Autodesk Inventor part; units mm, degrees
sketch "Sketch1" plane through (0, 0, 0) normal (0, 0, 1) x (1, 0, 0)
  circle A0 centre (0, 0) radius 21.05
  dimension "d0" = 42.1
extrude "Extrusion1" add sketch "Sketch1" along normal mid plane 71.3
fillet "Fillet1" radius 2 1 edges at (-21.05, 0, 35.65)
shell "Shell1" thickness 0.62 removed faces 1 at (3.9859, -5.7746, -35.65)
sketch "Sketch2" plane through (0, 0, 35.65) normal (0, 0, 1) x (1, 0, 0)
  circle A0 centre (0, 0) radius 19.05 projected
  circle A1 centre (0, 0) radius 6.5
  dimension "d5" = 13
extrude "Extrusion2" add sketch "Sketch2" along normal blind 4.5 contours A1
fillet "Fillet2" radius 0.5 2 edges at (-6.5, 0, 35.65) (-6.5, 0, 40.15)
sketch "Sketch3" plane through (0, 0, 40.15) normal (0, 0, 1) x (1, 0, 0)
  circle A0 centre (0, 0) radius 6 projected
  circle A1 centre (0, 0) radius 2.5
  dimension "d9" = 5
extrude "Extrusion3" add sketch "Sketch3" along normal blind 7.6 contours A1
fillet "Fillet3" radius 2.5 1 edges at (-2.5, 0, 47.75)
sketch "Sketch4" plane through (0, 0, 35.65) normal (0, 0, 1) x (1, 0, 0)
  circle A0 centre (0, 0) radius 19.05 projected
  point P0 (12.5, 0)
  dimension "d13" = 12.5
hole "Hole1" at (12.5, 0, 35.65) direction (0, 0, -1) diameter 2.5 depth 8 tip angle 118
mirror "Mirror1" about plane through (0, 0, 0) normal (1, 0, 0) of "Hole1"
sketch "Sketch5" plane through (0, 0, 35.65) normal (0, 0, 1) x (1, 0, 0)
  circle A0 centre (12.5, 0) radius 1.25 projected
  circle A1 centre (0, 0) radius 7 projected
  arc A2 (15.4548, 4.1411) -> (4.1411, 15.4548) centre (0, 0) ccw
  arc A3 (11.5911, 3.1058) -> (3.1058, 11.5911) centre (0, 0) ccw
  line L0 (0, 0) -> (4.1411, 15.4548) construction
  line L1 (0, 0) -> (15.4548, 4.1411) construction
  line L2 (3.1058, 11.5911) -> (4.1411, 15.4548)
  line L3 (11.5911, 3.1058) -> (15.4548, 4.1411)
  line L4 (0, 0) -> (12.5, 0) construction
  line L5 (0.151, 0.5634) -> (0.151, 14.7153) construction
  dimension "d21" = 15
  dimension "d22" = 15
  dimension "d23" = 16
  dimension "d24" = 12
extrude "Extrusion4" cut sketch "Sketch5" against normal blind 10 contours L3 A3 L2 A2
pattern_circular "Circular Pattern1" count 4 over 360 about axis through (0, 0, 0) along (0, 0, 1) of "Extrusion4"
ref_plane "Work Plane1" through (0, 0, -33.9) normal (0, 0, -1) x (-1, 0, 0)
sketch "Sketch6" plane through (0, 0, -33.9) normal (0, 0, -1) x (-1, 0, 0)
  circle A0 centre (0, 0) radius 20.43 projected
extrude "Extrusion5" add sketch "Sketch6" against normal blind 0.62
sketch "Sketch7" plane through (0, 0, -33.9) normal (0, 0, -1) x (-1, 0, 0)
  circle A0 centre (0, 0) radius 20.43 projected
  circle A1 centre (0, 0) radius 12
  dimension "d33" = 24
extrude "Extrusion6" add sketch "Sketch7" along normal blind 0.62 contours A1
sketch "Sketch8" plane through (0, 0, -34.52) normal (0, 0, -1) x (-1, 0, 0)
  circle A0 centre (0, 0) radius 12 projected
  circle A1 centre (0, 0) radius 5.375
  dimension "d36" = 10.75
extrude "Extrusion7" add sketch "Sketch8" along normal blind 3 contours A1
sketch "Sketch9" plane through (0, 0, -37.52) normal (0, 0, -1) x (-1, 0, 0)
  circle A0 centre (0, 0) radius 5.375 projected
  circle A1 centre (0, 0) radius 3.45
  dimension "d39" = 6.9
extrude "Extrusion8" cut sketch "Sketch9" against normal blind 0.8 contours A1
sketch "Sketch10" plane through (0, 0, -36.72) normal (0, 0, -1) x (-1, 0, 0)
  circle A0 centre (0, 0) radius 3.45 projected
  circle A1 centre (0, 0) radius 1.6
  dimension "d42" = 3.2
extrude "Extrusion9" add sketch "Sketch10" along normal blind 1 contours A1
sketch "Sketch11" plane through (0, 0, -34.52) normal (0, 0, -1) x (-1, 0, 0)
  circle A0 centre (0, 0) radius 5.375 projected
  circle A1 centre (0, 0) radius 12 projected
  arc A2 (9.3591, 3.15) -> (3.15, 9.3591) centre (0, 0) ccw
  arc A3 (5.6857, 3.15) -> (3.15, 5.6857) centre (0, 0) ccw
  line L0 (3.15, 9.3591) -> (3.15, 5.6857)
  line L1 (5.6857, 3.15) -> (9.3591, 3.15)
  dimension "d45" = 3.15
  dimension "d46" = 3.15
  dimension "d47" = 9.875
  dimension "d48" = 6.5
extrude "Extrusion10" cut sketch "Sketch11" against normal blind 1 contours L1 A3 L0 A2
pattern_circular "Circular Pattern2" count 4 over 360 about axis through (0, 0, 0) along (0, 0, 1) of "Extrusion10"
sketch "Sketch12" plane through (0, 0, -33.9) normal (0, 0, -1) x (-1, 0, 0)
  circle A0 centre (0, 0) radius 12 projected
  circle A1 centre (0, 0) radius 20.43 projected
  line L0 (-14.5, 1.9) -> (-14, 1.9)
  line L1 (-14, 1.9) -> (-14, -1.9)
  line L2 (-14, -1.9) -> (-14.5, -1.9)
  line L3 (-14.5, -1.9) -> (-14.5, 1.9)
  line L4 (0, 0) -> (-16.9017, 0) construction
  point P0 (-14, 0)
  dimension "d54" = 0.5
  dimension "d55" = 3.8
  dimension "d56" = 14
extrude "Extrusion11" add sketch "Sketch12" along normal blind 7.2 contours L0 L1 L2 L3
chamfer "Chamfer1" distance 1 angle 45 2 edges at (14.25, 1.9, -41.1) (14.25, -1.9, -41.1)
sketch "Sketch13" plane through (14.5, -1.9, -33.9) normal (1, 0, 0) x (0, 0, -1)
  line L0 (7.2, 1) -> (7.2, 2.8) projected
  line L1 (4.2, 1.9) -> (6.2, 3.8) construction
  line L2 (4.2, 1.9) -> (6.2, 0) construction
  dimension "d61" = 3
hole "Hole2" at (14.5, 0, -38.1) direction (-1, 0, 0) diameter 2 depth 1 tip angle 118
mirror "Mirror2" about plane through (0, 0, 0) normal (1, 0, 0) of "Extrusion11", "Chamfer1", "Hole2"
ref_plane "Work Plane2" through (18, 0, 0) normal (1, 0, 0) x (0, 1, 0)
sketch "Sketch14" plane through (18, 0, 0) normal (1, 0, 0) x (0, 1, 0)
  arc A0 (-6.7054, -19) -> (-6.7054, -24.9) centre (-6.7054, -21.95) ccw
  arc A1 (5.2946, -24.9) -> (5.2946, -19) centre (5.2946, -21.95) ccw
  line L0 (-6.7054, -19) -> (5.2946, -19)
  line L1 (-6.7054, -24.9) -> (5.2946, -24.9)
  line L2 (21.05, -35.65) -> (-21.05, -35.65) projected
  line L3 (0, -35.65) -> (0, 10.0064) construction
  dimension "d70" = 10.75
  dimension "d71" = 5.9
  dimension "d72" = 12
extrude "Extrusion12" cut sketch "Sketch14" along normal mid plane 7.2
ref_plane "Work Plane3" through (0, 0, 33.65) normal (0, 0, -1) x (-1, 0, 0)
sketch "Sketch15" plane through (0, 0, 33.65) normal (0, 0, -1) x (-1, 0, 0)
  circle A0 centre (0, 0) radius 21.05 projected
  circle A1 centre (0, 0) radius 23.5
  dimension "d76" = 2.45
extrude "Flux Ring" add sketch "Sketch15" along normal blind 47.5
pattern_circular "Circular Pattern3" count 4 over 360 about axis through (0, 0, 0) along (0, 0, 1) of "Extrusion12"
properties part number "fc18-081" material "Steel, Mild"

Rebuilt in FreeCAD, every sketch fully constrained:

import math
import FreeCAD as App
import Part
import Sketcher
from FreeCAD import Vector
Q = App.Units.Quantity


def edges_at(feature, points):
    """Names of the edges that pass closest to the given points."""
    edges = feature.Shape.Edges
    near = lambda p: min(range(len(edges)), key=lambda i: edges[i].distToShape(Part.Vertex(*p))[0])
    return sorted({f"Edge{near(p) + 1}" for p in points})


def faces_at(feature, points):
    """Names of the faces that lie closest to the given points."""
    faces = feature.Shape.Faces
    near = lambda p: min(range(len(faces)), key=lambda i: faces[i].distToShape(Part.Vertex(*p))[0])
    return sorted({f"Face{near(p) + 1}" for p in points})

doc = App.newDocument("Part")
params = doc.addObject("Spreadsheet::Sheet", "Params")
for row, (alias, value) in enumerate([
    ("sketch1_diameter", "42.1 mm"),
    ("pad1_length", "71.3 mm"),
    ("fillet_radius", "2 mm"),
    ("thickness_wall", "0.62 mm"),
    ("sketch2_diameter", "13 mm"),
    ("pad2_length", "4.5 mm"),
    ("fillet2_radius", "0.5 mm"),
    ("sketch3_diameter", "5 mm"),
    ("pad3_length", "7.6 mm"),
    ("fillet3_radius", "2.5 mm"),
    ("sketch4_diameter", "2.5 mm"),
    ("hole_diameter", "2.5 mm"),
    ("hole_depth", "8 mm"),
    ("sketch5_radius", "16 mm"),
    ("sketch5_radius2", "12 mm"),
    ("pocket1_length", "10 mm"),
    ("sketch6_diameter", "40.86 mm"),
    ("pad4_length", "0.62 mm"),
    ("sketch7_diameter", "24 mm"),
    ("pad5_length", "0.62 mm"),
    ("sketch8_diameter", "10.75 mm"),
    ("pad6_length", "3 mm"),
    ("sketch9_diameter", "6.9 mm"),
    ("pocket2_length", "0.8 mm"),
    ("sketch10_diameter", "3.2 mm"),
    ("pad7_length", "1 mm"),
    ("sketch11_radius", "6.5 mm"),
    ("pocket3_length", "1 mm"),
    ("sketch12_width", "0.5 mm"),
    ("sketch12_height", "3.8 mm"),
    ("pad8_length", "7.2 mm"),
    ("chamfer_size", "1 mm"),
    ("sketch13_diameter", "2 mm"),
    ("hole2_diameter", "2 mm"),
    ("hole2_depth", "1 mm"),
    ("sketch14_width", "12 mm"),
    ("sketch14_radius", "2.95 mm"),
    ("pocket4_length", "7.2 mm"),
    ("sketch15_diameter", "47 mm"),
    ("sketch15_diameter2", "42.1 mm"),
    ("pad9_length", "47.5 mm"),
], start=1):
    params.set(f"A{row}", alias)
    params.set(f"B{row}", "=" + value)
    params.setAlias(f"B{row}", alias)

body = doc.addObject("PartDesign::Body", "Body")

# Sketch on XY plane
sketch1 = body.newObject("Sketcher::SketchObject", "Sketch")
sketch1.AttachmentSupport = (doc.getObject("XY_Plane"), [""])
sketch1.MapMode = "FlatFace"
sketch1.addGeometry(Part.Circle(Vector(0, 0, 0), Vector(0, 0, 1), 21.05), False)
sketch1.addConstraint([
    Sketcher.Constraint("Coincident", 0, 3, -1, 1),
    Sketcher.Constraint("Diameter", 0, 42.1),
])
sketch1.setExpression("Constraints[1]", "Params.sketch1_diameter")
pad1 = body.newObject("PartDesign::Pad", "Pad")
pad1.Profile = sketch1
pad1.setExpression("Length", "Params.pad1_length")
pad1.Midplane = True
doc.recompute()

fillet = body.newObject("PartDesign::Fillet", "Fillet")
fillet.Base = (pad1, edges_at(pad1, [(-21.05, 0, 35.65)]))
fillet.setExpression("Radius", "Params.fillet_radius")
doc.recompute()

thickness = body.newObject("PartDesign::Thickness", "Thickness")
thickness.Base = (fillet, faces_at(fillet, [(3.986, -5.775, -35.65)]))
thickness.setExpression("Value", "Params.thickness_wall")
thickness.Reversed = True
thickness.Join = "Intersection"

# Sketch on XY plane
sketch2 = body.newObject("Sketcher::SketchObject", "Sketch001")
sketch2.AttachmentSupport = (doc.getObject("XY_Plane"), [""])
sketch2.MapMode = "FlatFace"
sketch2.AttachmentOffset = App.Placement(Vector(0, 0, 35.65), App.Rotation())
sketch2.addGeometry(Part.Circle(Vector(0, 0, 0), Vector(0, 0, 1), 6.5), False)
sketch2.addConstraint([
    Sketcher.Constraint("Coincident", 0, 3, -1, 1),
    Sketcher.Constraint("Diameter", 0, 13.0),
])
sketch2.setExpression("Constraints[1]", "Params.sketch2_diameter")
pad2 = body.newObject("PartDesign::Pad", "Pad001")
pad2.Profile = sketch2
pad2.setExpression("Length", "Params.pad2_length")
doc.recompute()

fillet2 = body.newObject("PartDesign::Fillet", "Fillet001")
fillet2.Base = (pad2, edges_at(pad2, [(-6.5, 0, 35.65), (-6.5, 0, 40.15)]))
fillet2.setExpression("Radius", "Params.fillet2_radius")

# Sketch on XY plane
sketch3 = body.newObject("Sketcher::SketchObject", "Sketch002")
sketch3.AttachmentSupport = (doc.getObject("XY_Plane"), [""])
sketch3.MapMode = "FlatFace"
sketch3.AttachmentOffset = App.Placement(Vector(0, 0, 40.15), App.Rotation())
sketch3.addGeometry(Part.Circle(Vector(0, 0, 0), Vector(0, 0, 1), 2.5), False)
sketch3.addConstraint([
    Sketcher.Constraint("Coincident", 0, 3, -1, 1),
    Sketcher.Constraint("Diameter", 0, 5.0),
])
sketch3.setExpression("Constraints[1]", "Params.sketch3_diameter")
pad3 = body.newObject("PartDesign::Pad", "Pad002")
pad3.Profile = sketch3
pad3.setExpression("Length", "Params.pad3_length")
doc.recompute()

fillet3 = body.newObject("PartDesign::Fillet", "Fillet002")
fillet3.Base = (pad3, edges_at(pad3, [(-2.5, 0, 47.75)]))
fillet3.setExpression("Radius", "Params.fillet3_radius")

# Sketch on XY plane
sketch4 = body.newObject("Sketcher::SketchObject", "Sketch003")
sketch4.AttachmentSupport = (doc.getObject("XY_Plane"), [""])
sketch4.MapMode = "FlatFace"
sketch4.AttachmentOffset = App.Placement(Vector(0, 0, 35.65), App.Rotation())
sketch4.addGeometry(Part.Circle(Vector(12.5, 0, 0), Vector(0, 0, 1), 1.25), False)
sketch4.addConstraint([
    Sketcher.Constraint("PointOnObject", 0, 3, -1),
    Sketcher.Constraint("Diameter", 0, 2.5),
    Sketcher.Constraint("DistanceX", -1, 1, 0, 3, 12.5),
])
sketch4.setExpression("Constraints[1]", "Params.sketch4_diameter")
doc.recompute()
hole = body.newObject("PartDesign::Hole", "Hole")
hole.Profile = sketch4
hole.ThreadType = "None"
hole.setExpression("Diameter", "Params.hole_diameter")
hole.DepthType = "Dimension"
hole.setExpression("Depth", "Params.hole_depth")
hole.DrillPoint = "Angled"
hole.DrillPointAngle = 118
doc.recompute()

mirrored = body.newObject("PartDesign::Mirrored", "Mirrored")
mirrored.Originals = [hole]
mirrored.MirrorPlane = (doc.getObject("YZ_Plane"), [""])
body.Tip = mirrored

# Sketch on XY plane
sketch5 = body.newObject("Sketcher::SketchObject", "Sketch004")
sketch5.AttachmentSupport = (doc.getObject("XY_Plane"), [""])
sketch5.MapMode = "FlatFace"
sketch5.AttachmentOffset = App.Placement(Vector(0, 0, 35.65), App.Rotation())
sketch5.addGeometry([
    Part.LineSegment(Vector(11.5911, 3.1058, 0), Vector(15.4548, 4.1411, 0)),
    Part.ArcOfCircle(Part.Circle(Vector(0, 0, 0), Vector(0, 0, 1), 15.999986), math.radians(14.999996), math.radians(75.000004)),
    Part.LineSegment(Vector(4.1411, 15.4548, 0), Vector(3.1058, 11.5911, 0)),
    Part.ArcOfCircle(Part.Circle(Vector(0, 0, 0), Vector(0, 0, 1), 11.999983), math.radians(14.999881), math.radians(75.000119)),
], False)
sketch5.addConstraint([
    Sketcher.Constraint("Coincident", 0, 2, 1, 1),
    Sketcher.Constraint("Coincident", 1, 2, 2, 1),
    Sketcher.Constraint("Coincident", 2, 2, 3, 2),
    Sketcher.Constraint("Coincident", 3, 1, 0, 1),
    Sketcher.Constraint("Coincident", 1, 3, -1, 1),
    Sketcher.Constraint("Coincident", 3, 3, -1, 1),
    Sketcher.Constraint("Radius", 1, 16.0),
    Sketcher.Constraint("Radius", 3, 12.0),
    Sketcher.Constraint("Angle", 0, Q("15.0003 deg")),
    Sketcher.Constraint("Angle", 2, Q("-105.0003 deg")),
    Sketcher.Constraint("DistanceY", 0, 2, 2, 2, 7.45),
    Sketcher.Constraint("DistanceX", 1, 2, 3, 1, 7.45),
])
sketch5.setExpression("Constraints[6]", "Params.sketch5_radius")
sketch5.setExpression("Constraints[7]", "Params.sketch5_radius2")
pocket1 = body.newObject("PartDesign::Pocket", "Pocket")
pocket1.Profile = sketch5
pocket1.setExpression("Length", "Params.pocket1_length")
doc.recompute()

polarpattern = body.newObject("PartDesign::PolarPattern", "PolarPattern")
polarpattern.Originals = [pocket1]
polarpattern.Axis = (doc.getObject("Z_Axis"), [""])
polarpattern.Angle = 360
polarpattern.Occurrences = 4
body.Tip = polarpattern

# Sketch on XY plane
sketch6 = body.newObject("Sketcher::SketchObject", "Sketch005")
sketch6.AttachmentSupport = (doc.getObject("XY_Plane"), [""])
sketch6.MapMode = "FlatFace"
sketch6.AttachmentOffset = App.Placement(Vector(0, 0, -33.9), App.Rotation())
sketch6.addGeometry(Part.Circle(Vector(0, 0, 0), Vector(0, 0, 1), 20.43), False)
sketch6.addConstraint([
    Sketcher.Constraint("Coincident", 0, 3, -1, 1),
    Sketcher.Constraint("Diameter", 0, 40.86),
])
sketch6.setExpression("Constraints[1]", "Params.sketch6_diameter")
pad4 = body.newObject("PartDesign::Pad", "Pad003")
pad4.Profile = sketch6
pad4.setExpression("Length", "Params.pad4_length")

# Sketch on XY plane
sketch7 = body.newObject("Sketcher::SketchObject", "Sketch006")
sketch7.AttachmentSupport = (doc.getObject("XY_Plane"), [""])
sketch7.MapMode = "FlatFace"
sketch7.AttachmentOffset = App.Placement(Vector(0, 0, -33.9), App.Rotation())
sketch7.addGeometry(Part.Circle(Vector(0, 0, 0), Vector(0, 0, 1), 12), False)
sketch7.addConstraint([
    Sketcher.Constraint("Coincident", 0, 3, -1, 1),
    Sketcher.Constraint("Diameter", 0, 24.0),
])
sketch7.setExpression("Constraints[1]", "Params.sketch7_diameter")
pad5 = body.newObject("PartDesign::Pad", "Pad004")
pad5.Profile = sketch7
pad5.setExpression("Length", "Params.pad5_length")
pad5.Reversed = True

# Sketch on XY plane
sketch8 = body.newObject("Sketcher::SketchObject", "Sketch007")
sketch8.AttachmentSupport = (doc.getObject("XY_Plane"), [""])
sketch8.MapMode = "FlatFace"
sketch8.AttachmentOffset = App.Placement(Vector(0, 0, -34.52), App.Rotation())
sketch8.addGeometry(Part.Circle(Vector(0, 0, 0), Vector(0, 0, 1), 5.375), False)
sketch8.addConstraint([
    Sketcher.Constraint("Coincident", 0, 3, -1, 1),
    Sketcher.Constraint("Diameter", 0, 10.75),
])
sketch8.setExpression("Constraints[1]", "Params.sketch8_diameter")
pad6 = body.newObject("PartDesign::Pad", "Pad005")
pad6.Profile = sketch8
pad6.setExpression("Length", "Params.pad6_length")
pad6.Reversed = True

# Sketch on XY plane
sketch9 = body.newObject("Sketcher::SketchObject", "Sketch008")
sketch9.AttachmentSupport = (doc.getObject("XY_Plane"), [""])
sketch9.MapMode = "FlatFace"
sketch9.AttachmentOffset = App.Placement(Vector(0, 0, -37.52), App.Rotation())
sketch9.addGeometry(Part.Circle(Vector(0, 0, 0), Vector(0, 0, 1), 3.45), False)
sketch9.addConstraint([
    Sketcher.Constraint("Coincident", 0, 3, -1, 1),
    Sketcher.Constraint("Diameter", 0, 6.9),
])
sketch9.setExpression("Constraints[1]", "Params.sketch9_diameter")
pocket2 = body.newObject("PartDesign::Pocket", "Pocket001")
pocket2.Profile = sketch9
pocket2.setExpression("Length", "Params.pocket2_length")
pocket2.Reversed = True

# Sketch on XY plane
sketch10 = body.newObject("Sketcher::SketchObject", "Sketch009")
sketch10.AttachmentSupport = (doc.getObject("XY_Plane"), [""])
sketch10.MapMode = "FlatFace"
sketch10.AttachmentOffset = App.Placement(Vector(0, 0, -36.72), App.Rotation())
sketch10.addGeometry(Part.Circle(Vector(0, 0, 0), Vector(0, 0, 1), 1.6), False)
sketch10.addConstraint([
    Sketcher.Constraint("Coincident", 0, 3, -1, 1),
    Sketcher.Constraint("Diameter", 0, 3.2),
])
sketch10.setExpression("Constraints[1]", "Params.sketch10_diameter")
pad7 = body.newObject("PartDesign::Pad", "Pad006")
pad7.Profile = sketch10
pad7.setExpression("Length", "Params.pad7_length")
pad7.Reversed = True

# Sketch on XY plane
sketch11 = body.newObject("Sketcher::SketchObject", "Sketch010")
sketch11.AttachmentSupport = (doc.getObject("XY_Plane"), [""])
sketch11.MapMode = "FlatFace"
sketch11.AttachmentOffset = App.Placement(Vector(0, 0, -34.52), App.Rotation())
sketch11.addGeometry([
    Part.LineSegment(Vector(-5.6857, 3.15, 0), Vector(-9.3591, 3.15, 0)),
    Part.ArcOfCircle(Part.Circle(Vector(0, 0, 0), Vector(0, 0, 1), 9.874981), math.radians(108.601731), math.radians(161.398269)),
    Part.LineSegment(Vector(-3.15, 9.3591, 0), Vector(-3.15, 5.6857, 0)),
    Part.ArcOfCircle(Part.Circle(Vector(0, 0, 0), Vector(0, 0, 1), 6.499976), math.radians(118.987395), math.radians(151.012605)),
], False)
sketch11.addConstraint([
    Sketcher.Constraint("Coincident", 0, 2, 1, 2),
    Sketcher.Constraint("Coincident", 1, 1, 2, 1),
    Sketcher.Constraint("Coincident", 2, 2, 3, 1),
    Sketcher.Constraint("Coincident", 3, 2, 0, 1),
    Sketcher.Constraint("Horizontal", 0),
    Sketcher.Constraint("Vertical", 2),
    Sketcher.Constraint("Coincident", 1, 3, -1, 1),
    Sketcher.Constraint("Coincident", 3, 3, -1, 1),
    Sketcher.Constraint("Equal", 0, 2),
    Sketcher.Constraint("Radius", 3, 6.5),
    Sketcher.Constraint("Radius", 1, 9.875),
    Sketcher.Constraint("DistanceY", -1, 1, 0, 2, 3.15),
])
sketch11.setExpression("Constraints[9]", "Params.sketch11_radius")
pocket3 = body.newObject("PartDesign::Pocket", "Pocket002")
pocket3.Profile = sketch11
pocket3.setExpression("Length", "Params.pocket3_length")
pocket3.Reversed = True
doc.recompute()

polarpattern2 = body.newObject("PartDesign::PolarPattern", "PolarPattern001")
polarpattern2.Originals = [pocket3]
polarpattern2.Axis = (doc.getObject("Z_Axis"), [""])
polarpattern2.Angle = 360
polarpattern2.Occurrences = 4
body.Tip = polarpattern2

# Sketch on XY plane
sketch12 = body.newObject("Sketcher::SketchObject", "Sketch011")
sketch12.AttachmentSupport = (doc.getObject("XY_Plane"), [""])
sketch12.MapMode = "FlatFace"
sketch12.AttachmentOffset = App.Placement(Vector(0, 0, -33.9), App.Rotation())
sketch12.addGeometry([
    Part.LineSegment(Vector(14, 1.9, 0), Vector(14.5, 1.9, 0)),
    Part.LineSegment(Vector(14.5, 1.9, 0), Vector(14.5, -1.9, 0)),
    Part.LineSegment(Vector(14.5, -1.9, 0), Vector(14, -1.9, 0)),
    Part.LineSegment(Vector(14, -1.9, 0), Vector(14, 1.9, 0)),
], False)
sketch12.addConstraint([
    Sketcher.Constraint("Coincident", 0, 2, 1, 1),
    Sketcher.Constraint("Coincident", 1, 2, 2, 1),
    Sketcher.Constraint("Coincident", 2, 2, 3, 1),
    Sketcher.Constraint("Coincident", 3, 2, 0, 1),
    Sketcher.Constraint("Horizontal", 0),
    Sketcher.Constraint("Vertical", 1),
    Sketcher.Constraint("Horizontal", 2),
    Sketcher.Constraint("Vertical", 3),
    Sketcher.Constraint("DistanceX", 0, 1, 0, 2, 0.5),
    Sketcher.Constraint("DistanceY", 1, 2, 1, 1, 3.8),
    Sketcher.Constraint("DistanceX", -1, 1, 2, 2, 14.0),
    Sketcher.Constraint("DistanceY", -1, 1, 0, 2, 1.9),
])
sketch12.setExpression("Constraints[8]", "Params.sketch12_width")
sketch12.setExpression("Constraints[9]", "Params.sketch12_height")
pad8 = body.newObject("PartDesign::Pad", "Pad007")
pad8.Profile = sketch12
pad8.setExpression("Length", "Params.pad8_length")
pad8.Reversed = True
doc.recompute()

chamfer = body.newObject("PartDesign::Chamfer", "Chamfer")
chamfer.Base = (pad8, edges_at(pad8, [(14.25, 1.9, -41.1), (14.25, -1.9, -41.1)]))
chamfer.setExpression("Size", "Params.chamfer_size")

# Sketch on YZ plane
sketch13 = body.newObject("Sketcher::SketchObject", "Sketch012")
sketch13.AttachmentSupport = (doc.getObject("YZ_Plane"), [""])
sketch13.MapMode = "FlatFace"
sketch13.AttachmentOffset = App.Placement(Vector(0, 0, 14.5), App.Rotation())
sketch13.addGeometry(Part.Circle(Vector(0, -38.1, 0), Vector(0, 0, 1), 1), False)
sketch13.addConstraint([
    Sketcher.Constraint("PointOnObject", 0, 3, -2),
    Sketcher.Constraint("Diameter", 0, 2.0),
    Sketcher.Constraint("DistanceY", 0, 3, -1, 1, 38.1),
])
sketch13.setExpression("Constraints[1]", "Params.sketch13_diameter")
doc.recompute()
hole2 = body.newObject("PartDesign::Hole", "Hole001")
hole2.Profile = sketch13
hole2.ThreadType = "None"
hole2.setExpression("Diameter", "Params.hole2_diameter")
hole2.DepthType = "Dimension"
hole2.setExpression("Depth", "Params.hole2_depth")
hole2.DrillPoint = "Angled"
hole2.DrillPointAngle = 118
doc.recompute()

mirrored2 = body.newObject("PartDesign::Mirrored", "Mirrored001")
mirrored2.Originals = [pad8, chamfer, hole2]
mirrored2.MirrorPlane = (doc.getObject("YZ_Plane"), [""])
body.Tip = mirrored2

# Sketch on YZ plane
sketch14 = body.newObject("Sketcher::SketchObject", "Sketch013")
sketch14.AttachmentSupport = (doc.getObject("YZ_Plane"), [""])
sketch14.MapMode = "FlatFace"
sketch14.AttachmentOffset = App.Placement(Vector(0, 0, 18), App.Rotation())
sketch14.addGeometry([
    Part.LineSegment(Vector(5.2946, -19, 0), Vector(-6.7054, -19, 0)),
    Part.ArcOfCircle(Part.Circle(Vector(-6.7054, -21.95, 0), Vector(0, 0, 1), 2.95), math.radians(90), math.radians(270)),
    Part.LineSegment(Vector(-6.7054, -24.9, 0), Vector(5.2946, -24.9, 0)),
    Part.ArcOfCircle(Part.Circle(Vector(5.2946, -21.95, 0), Vector(0, 0, 1), 2.95), math.radians(-90), math.radians(90)),
], False)
sketch14.addConstraint([
    Sketcher.Constraint("Tangent", 0, 2, 1, 1),
    Sketcher.Constraint("Tangent", 1, 2, 2, 1),
    Sketcher.Constraint("Tangent", 2, 2, 3, 1),
    Sketcher.Constraint("Tangent", 3, 2, 0, 1),
    Sketcher.Constraint("Horizontal", 0),
    Sketcher.Constraint("Horizontal", 2),
    Sketcher.Constraint("DistanceX", 0, 2, 0, 1, 12.0),
    Sketcher.Constraint("Radius", 1, 2.95),
    Sketcher.Constraint("DistanceY", 0, 2, -1, 1, 19.0),
    Sketcher.Constraint("DistanceX", 1, 3, -1, 1, 6.7054),
])
sketch14.setExpression("Constraints[6]", "Params.sketch14_width")
sketch14.setExpression("Constraints[7]", "Params.sketch14_radius")
pocket4 = body.newObject("PartDesign::Pocket", "Pocket003")
pocket4.Profile = sketch14
pocket4.setExpression("Length", "Params.pocket4_length")
pocket4.Midplane = True

# Sketch on XY plane
sketch15 = body.newObject("Sketcher::SketchObject", "Sketch014")
sketch15.AttachmentSupport = (doc.getObject("XY_Plane"), [""])
sketch15.MapMode = "FlatFace"
sketch15.AttachmentOffset = App.Placement(Vector(0, 0, 33.65), App.Rotation())
sketch15.addGeometry([
    Part.Circle(Vector(0, 0, 0), Vector(0, 0, 1), 23.5),
    Part.Circle(Vector(0, 0, 0), Vector(0, 0, 1), 21.05),
], False)
sketch15.addConstraint([
    Sketcher.Constraint("Coincident", 0, 3, -1, 1),
    Sketcher.Constraint("Coincident", 1, 3, -1, 1),
    Sketcher.Constraint("Diameter", 0, 47.0),
    Sketcher.Constraint("Diameter", 1, 42.1),
])
sketch15.setExpression("Constraints[2]", "Params.sketch15_diameter")
sketch15.setExpression("Constraints[3]", "Params.sketch15_diameter2")
pad9 = body.newObject("PartDesign::Pad", "Pad008")
pad9.Profile = sketch15
pad9.setExpression("Length", "Params.pad9_length")
pad9.Reversed = True
doc.recompute()

polarpattern3 = body.newObject("PartDesign::PolarPattern", "PolarPattern002")
polarpattern3.Originals = [pocket4]
polarpattern3.Axis = (doc.getObject("Z_Axis"), [""])
polarpattern3.Angle = 360
polarpattern3.Occurrences = 4
body.Tip = polarpattern3

doc.recompute()
